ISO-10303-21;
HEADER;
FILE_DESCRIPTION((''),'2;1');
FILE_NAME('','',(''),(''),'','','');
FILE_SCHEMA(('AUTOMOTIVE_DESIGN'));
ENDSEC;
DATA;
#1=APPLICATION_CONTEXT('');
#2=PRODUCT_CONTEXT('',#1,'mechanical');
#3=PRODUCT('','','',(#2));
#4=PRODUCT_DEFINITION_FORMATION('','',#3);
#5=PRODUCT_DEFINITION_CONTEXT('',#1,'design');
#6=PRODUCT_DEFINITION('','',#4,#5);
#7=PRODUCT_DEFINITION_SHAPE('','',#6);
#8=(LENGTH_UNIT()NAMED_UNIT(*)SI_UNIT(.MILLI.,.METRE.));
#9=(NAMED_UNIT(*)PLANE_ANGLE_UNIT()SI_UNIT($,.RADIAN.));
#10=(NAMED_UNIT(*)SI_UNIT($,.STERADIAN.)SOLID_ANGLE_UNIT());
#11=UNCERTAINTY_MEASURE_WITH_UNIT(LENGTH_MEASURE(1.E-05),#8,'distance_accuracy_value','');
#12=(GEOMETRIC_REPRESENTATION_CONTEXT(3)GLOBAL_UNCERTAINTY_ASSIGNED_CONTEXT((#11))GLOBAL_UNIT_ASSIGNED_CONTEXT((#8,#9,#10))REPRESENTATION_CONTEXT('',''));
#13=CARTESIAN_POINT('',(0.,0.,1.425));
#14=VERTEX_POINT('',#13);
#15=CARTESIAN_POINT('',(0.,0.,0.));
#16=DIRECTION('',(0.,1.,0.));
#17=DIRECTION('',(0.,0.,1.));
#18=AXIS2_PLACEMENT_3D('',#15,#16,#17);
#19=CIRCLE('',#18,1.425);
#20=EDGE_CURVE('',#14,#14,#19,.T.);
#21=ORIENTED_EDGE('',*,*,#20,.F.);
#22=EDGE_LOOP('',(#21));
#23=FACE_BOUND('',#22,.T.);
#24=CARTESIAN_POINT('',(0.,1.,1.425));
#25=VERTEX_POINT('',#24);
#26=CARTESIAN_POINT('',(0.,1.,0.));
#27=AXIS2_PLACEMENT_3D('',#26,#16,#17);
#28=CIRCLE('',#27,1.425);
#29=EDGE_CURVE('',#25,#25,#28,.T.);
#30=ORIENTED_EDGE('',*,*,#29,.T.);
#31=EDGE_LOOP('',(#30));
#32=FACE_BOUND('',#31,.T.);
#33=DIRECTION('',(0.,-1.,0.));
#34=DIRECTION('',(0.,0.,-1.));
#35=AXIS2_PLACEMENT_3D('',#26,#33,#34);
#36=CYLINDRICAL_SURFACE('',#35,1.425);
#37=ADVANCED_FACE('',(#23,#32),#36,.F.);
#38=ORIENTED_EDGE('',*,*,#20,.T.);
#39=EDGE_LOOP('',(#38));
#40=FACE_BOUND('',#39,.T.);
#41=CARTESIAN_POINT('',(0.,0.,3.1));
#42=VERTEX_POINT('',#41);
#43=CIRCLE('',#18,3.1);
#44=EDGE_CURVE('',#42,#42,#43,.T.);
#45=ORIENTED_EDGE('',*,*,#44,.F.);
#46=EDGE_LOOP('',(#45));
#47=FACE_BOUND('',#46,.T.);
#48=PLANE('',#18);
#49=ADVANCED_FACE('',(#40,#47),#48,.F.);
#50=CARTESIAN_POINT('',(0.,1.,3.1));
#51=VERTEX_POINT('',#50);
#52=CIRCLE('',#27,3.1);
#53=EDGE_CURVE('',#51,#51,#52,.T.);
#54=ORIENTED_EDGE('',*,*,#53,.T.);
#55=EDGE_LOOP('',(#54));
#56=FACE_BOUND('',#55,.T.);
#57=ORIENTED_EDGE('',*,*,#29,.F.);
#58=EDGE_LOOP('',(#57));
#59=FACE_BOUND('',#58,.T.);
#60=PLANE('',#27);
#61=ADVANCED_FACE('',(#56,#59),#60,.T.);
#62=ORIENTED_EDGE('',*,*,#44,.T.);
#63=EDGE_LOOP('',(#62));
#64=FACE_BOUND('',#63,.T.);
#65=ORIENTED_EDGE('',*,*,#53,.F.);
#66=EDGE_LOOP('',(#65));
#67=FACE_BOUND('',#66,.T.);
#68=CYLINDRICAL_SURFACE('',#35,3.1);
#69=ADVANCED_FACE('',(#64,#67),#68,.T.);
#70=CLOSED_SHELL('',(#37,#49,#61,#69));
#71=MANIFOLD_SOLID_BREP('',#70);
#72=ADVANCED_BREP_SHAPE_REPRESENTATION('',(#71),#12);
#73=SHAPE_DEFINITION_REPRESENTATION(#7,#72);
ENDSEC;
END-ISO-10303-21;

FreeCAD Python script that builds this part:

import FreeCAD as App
import Part
import Sketcher

V = App.Vector

doc = App.newDocument("Part")
body = doc.addObject("PartDesign::Body", "Body")

# Sketch on XZ plane
sketch1 = body.newObject("Sketcher::SketchObject", "Sketch")
sketch1.AttachmentSupport = (doc.getObject("XZ_Plane"), [""])
sketch1.MapMode = "FlatFace"
sketch1.addGeometry([
    Part.Circle(V(0, 0, 0), V(0, 0, 1), 3.1),
    Part.Circle(V(0, 0, 0), V(0, 0, 1), 1.425),
], False)
sketch1.addConstraint([
    Sketcher.Constraint("Coincident", 0, 3, -1, 1),
    Sketcher.Constraint("Coincident", 1, 3, -1, 1),
    Sketcher.Constraint("Diameter", 0, 6.2),
    Sketcher.Constraint("Diameter", 1, 2.85),
])
pad1 = body.newObject("PartDesign::Pad", "Pad")
pad1.Profile = sketch1
pad1.Length = 1
pad1.Reversed = True

doc.recompute()
